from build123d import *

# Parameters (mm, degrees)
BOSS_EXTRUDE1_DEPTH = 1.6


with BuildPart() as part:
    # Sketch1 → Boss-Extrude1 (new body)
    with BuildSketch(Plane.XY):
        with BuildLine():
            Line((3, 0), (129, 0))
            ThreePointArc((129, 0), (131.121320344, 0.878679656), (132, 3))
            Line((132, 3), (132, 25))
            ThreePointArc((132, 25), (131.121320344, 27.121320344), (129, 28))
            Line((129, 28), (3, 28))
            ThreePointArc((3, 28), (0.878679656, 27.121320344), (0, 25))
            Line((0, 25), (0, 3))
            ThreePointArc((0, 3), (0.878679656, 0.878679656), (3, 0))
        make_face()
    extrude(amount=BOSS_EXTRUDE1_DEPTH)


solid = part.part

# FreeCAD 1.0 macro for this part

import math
import FreeCAD as App
import Part
import Sketcher

V = App.Vector
Q = App.Units.Quantity

doc = App.newDocument("Part")
body = doc.addObject("PartDesign::Body", "Body")

sketch1 = body.newObject("Sketcher::SketchObject", "Sketch")
sketch1.AttachmentSupport = (doc.getObject("XY_Plane"), [""])
sketch1.MapMode = "FlatFace"
sketch1.addGeometry([
    Part.LineSegment(V(3, 0, 0), V(129, 0, 0)),
    Part.ArcOfCircle(Part.Circle(V(129, 3, 0), V(0, 0, 1), 3), math.radians(-90), math.radians(0)),
    Part.LineSegment(V(132, 3, 0), V(132, 25, 0)),
    Part.ArcOfCircle(Part.Circle(V(129, 25, 0), V(0, 0, 1), 3), math.radians(0), math.radians(90)),
    Part.LineSegment(V(129, 28, 0), V(3, 28, 0)),
    Part.ArcOfCircle(Part.Circle(V(3, 25, 0), V(0, 0, 1), 3), math.radians(90), math.radians(180)),
    Part.LineSegment(V(0, 25, 0), V(0, 3, 0)),
    Part.ArcOfCircle(Part.Circle(V(3, 3, 0), V(0, 0, 1), 3), math.radians(180), math.radians(270)),
], False)
sketch1.addConstraint([
    Sketcher.Constraint("Tangent", 0, 2, 1, 1),
    Sketcher.Constraint("Tangent", 1, 2, 2, 1),
    Sketcher.Constraint("Tangent", 2, 2, 3, 1),
    Sketcher.Constraint("Tangent", 3, 2, 4, 1),
    Sketcher.Constraint("Tangent", 4, 2, 5, 1),
    Sketcher.Constraint("Tangent", 5, 2, 6, 1),
    Sketcher.Constraint("Tangent", 6, 2, 7, 1),
    Sketcher.Constraint("Tangent", 7, 2, 0, 1),
    Sketcher.Constraint("Horizontal", 0),
    Sketcher.Constraint("Vertical", 2),
    Sketcher.Constraint("Horizontal", 4),
    Sketcher.Constraint("Vertical", 6),
    Sketcher.Constraint("Equal", 1, 3),
    Sketcher.Constraint("Equal", 3, 5),
    Sketcher.Constraint("Equal", 5, 7),
    Sketcher.Constraint("PointOnObject", 0, 2, -1),
    Sketcher.Constraint("PointOnObject", 5, 2, -2),
    Sketcher.Constraint("Radius", 1, Q("3 mm")),
    Sketcher.Constraint("DistanceX", 0, 1, 0, 2, Q("126 mm")),
    Sketcher.Constraint("DistanceY", 2, 1, 2, 2, Q("22 mm")),
])
pad1 = body.newObject("PartDesign::Pad", "Pad")
pad1.Profile = sketch1
pad1.Length = 1.6

doc.recompute()
